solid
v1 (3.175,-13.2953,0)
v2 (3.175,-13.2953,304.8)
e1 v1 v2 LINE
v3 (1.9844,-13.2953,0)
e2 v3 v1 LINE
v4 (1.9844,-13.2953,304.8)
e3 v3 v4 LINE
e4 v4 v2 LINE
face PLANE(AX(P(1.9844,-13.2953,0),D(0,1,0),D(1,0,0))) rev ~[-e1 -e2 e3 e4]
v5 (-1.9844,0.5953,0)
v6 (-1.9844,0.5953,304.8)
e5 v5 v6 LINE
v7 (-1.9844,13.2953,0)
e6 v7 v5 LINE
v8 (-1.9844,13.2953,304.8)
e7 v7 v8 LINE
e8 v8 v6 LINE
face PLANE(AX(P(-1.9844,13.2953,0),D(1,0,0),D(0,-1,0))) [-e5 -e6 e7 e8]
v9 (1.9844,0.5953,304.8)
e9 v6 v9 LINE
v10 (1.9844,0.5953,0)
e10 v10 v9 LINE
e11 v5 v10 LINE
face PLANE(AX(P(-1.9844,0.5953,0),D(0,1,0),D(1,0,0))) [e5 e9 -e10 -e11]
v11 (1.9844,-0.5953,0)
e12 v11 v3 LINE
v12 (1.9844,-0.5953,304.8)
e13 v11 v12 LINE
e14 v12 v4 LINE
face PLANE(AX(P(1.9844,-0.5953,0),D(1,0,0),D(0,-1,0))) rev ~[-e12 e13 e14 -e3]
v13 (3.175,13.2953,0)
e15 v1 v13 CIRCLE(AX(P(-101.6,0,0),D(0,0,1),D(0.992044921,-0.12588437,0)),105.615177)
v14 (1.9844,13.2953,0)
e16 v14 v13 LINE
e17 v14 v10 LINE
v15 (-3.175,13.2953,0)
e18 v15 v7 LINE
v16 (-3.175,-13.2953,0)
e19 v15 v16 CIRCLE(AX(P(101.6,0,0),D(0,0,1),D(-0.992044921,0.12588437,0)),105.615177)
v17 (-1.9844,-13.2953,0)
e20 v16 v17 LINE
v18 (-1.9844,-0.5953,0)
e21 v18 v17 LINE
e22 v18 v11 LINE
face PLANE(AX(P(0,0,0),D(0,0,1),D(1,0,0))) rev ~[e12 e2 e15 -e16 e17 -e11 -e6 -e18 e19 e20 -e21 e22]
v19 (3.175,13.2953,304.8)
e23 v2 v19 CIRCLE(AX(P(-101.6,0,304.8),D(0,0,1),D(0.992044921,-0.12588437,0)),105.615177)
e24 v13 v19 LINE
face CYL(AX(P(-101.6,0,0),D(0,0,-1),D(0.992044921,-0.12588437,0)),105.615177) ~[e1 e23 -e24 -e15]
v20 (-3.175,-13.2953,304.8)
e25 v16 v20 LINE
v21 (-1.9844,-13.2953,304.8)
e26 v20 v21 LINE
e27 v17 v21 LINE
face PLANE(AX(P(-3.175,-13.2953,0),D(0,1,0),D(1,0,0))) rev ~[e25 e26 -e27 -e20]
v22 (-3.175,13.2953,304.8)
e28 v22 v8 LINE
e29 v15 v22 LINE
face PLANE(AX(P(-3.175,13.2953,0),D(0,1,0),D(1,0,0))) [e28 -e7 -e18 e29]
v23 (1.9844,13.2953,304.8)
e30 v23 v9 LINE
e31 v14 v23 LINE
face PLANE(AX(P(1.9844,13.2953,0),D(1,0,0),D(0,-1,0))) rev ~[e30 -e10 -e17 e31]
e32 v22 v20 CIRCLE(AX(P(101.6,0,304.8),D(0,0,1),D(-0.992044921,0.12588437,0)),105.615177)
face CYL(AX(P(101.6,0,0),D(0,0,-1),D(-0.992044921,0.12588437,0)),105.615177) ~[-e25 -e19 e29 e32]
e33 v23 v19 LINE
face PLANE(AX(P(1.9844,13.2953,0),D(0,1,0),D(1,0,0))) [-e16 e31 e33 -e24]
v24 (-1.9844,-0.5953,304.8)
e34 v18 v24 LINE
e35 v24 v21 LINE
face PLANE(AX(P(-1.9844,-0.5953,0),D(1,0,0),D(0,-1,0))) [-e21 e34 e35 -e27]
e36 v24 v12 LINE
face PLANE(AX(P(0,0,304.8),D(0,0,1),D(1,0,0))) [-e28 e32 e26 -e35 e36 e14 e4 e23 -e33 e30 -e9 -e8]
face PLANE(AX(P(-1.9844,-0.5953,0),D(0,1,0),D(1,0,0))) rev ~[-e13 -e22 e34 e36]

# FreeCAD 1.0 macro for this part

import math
import FreeCAD as App
import Part
import Sketcher

V = App.Vector
Q = App.Units.Quantity

doc = App.newDocument("Part")
params = doc.addObject("Spreadsheet::Sheet", "Params")
for row, (alias, value) in enumerate([
    ("sketch1_width", "0.046874 in"),
    ("sketch1_width2", "0.156252 in"),
    ("sketch1_height", "0.5 in"),
    ("pad1_length", "12 in"),
], start=1):
    params.set(f"A{row}", alias)
    params.set(f"B{row}", "=" + value)
    params.setAlias(f"B{row}", alias)

body = doc.addObject("PartDesign::Body", "Body")

sketch1 = body.newObject("Sketcher::SketchObject", "Sketch")
sketch1.AttachmentSupport = (doc.getObject("XY_Plane"), [""])
sketch1.MapMode = "FlatFace"
sketch1.addGeometry([
    Part.LineSegment(V(-2, 13.3, 0), V(-3.2, 13.3, 0)),
    Part.ArcOfCircle(Part.Circle(V(101.6, 0, 0), V(0, 0, 1), 105.6), math.radians(172.77), math.radians(187.23)),
    Part.LineSegment(V(-3.2, -13.3, 0), V(-2, -13.3, 0)),
    Part.LineSegment(V(-2, -13.3, 0), V(-2, -0.6, 0)),
    Part.LineSegment(V(-2, -0.6, 0), V(2, -0.6, 0)),
    Part.LineSegment(V(2, -0.6, 0), V(2, -13.3, 0)),
    Part.LineSegment(V(2, -13.3, 0), V(3.2, -13.3, 0)),
    Part.ArcOfCircle(Part.Circle(V(-101.6, 0, 0), V(0, 0, 1), 105.6), math.radians(-7.23), math.radians(7.23)),
    Part.LineSegment(V(3.2, 13.3, 0), V(2, 13.3, 0)),
    Part.LineSegment(V(2, 13.3, 0), V(2, 0.6, 0)),
    Part.LineSegment(V(2, 0.6, 0), V(-2, 0.6, 0)),
    Part.LineSegment(V(-2, 0.6, 0), V(-2, 13.3, 0)),
], False)
sketch1.addConstraint([
    Sketcher.Constraint("Coincident", 0, 2, 1, 1),
    Sketcher.Constraint("Coincident", 1, 2, 2, 1),
    Sketcher.Constraint("Coincident", 2, 2, 3, 1),
    Sketcher.Constraint("Coincident", 3, 2, 4, 1),
    Sketcher.Constraint("Coincident", 4, 2, 5, 1),
    Sketcher.Constraint("Coincident", 5, 2, 6, 1),
    Sketcher.Constraint("Coincident", 6, 2, 7, 1),
    Sketcher.Constraint("Coincident", 7, 2, 8, 1),
    Sketcher.Constraint("Coincident", 8, 2, 9, 1),
    Sketcher.Constraint("Coincident", 9, 2, 10, 1),
    Sketcher.Constraint("Coincident", 10, 2, 11, 1),
    Sketcher.Constraint("Coincident", 11, 2, 0, 1),
    Sketcher.Constraint("Horizontal", 0),
    Sketcher.Constraint("Horizontal", 2),
    Sketcher.Constraint("Vertical", 3),
    Sketcher.Constraint("Horizontal", 4),
    Sketcher.Constraint("Vertical", 5),
    Sketcher.Constraint("Horizontal", 6),
    Sketcher.Constraint("Horizontal", 8),
    Sketcher.Constraint("Vertical", 9),
    Sketcher.Constraint("Horizontal", 10),
    Sketcher.Constraint("Vertical", 11),
    Sketcher.Constraint("Equal", 1, 7),
    Sketcher.Constraint("Symmetric", 1, 3, 7, 3, -1, 1),
    Sketcher.Constraint("Symmetric", 2, 2, 8, 2, -1, 1),
    Sketcher.Constraint("Symmetric", 4, 2, 10, 2, -1, 1),
    Sketcher.Constraint("Symmetric", 2, 2, 5, 2, -2),
    Sketcher.Constraint("Symmetric", 0, 2, 7, 2, -2),
    Sketcher.Constraint("DistanceX", -1, 1, 1, 3, Q("4 in")),
    Sketcher.Constraint("DistanceX", 0, 2, 0, 1, Q("0.046874 in")),
    Sketcher.Constraint("DistanceX", 4, 1, 4, 2, Q("0.156252 in")),
    Sketcher.Constraint("DistanceY", 3, 1, 3, 2, Q("0.5 in")),
    Sketcher.Constraint("DistanceY", 1, 2, 0, 2, Q("1.046874 in")),
])
sketch1.setExpression("Constraints[29]", "Params.sketch1_width")
sketch1.setExpression("Constraints[30]", "Params.sketch1_width2")
sketch1.setExpression("Constraints[31]", "Params.sketch1_height")
pad1 = body.newObject("PartDesign::Pad", "Pad")
pad1.Profile = sketch1
pad1.setExpression("Length", "Params.pad1_length")

doc.recompute()
